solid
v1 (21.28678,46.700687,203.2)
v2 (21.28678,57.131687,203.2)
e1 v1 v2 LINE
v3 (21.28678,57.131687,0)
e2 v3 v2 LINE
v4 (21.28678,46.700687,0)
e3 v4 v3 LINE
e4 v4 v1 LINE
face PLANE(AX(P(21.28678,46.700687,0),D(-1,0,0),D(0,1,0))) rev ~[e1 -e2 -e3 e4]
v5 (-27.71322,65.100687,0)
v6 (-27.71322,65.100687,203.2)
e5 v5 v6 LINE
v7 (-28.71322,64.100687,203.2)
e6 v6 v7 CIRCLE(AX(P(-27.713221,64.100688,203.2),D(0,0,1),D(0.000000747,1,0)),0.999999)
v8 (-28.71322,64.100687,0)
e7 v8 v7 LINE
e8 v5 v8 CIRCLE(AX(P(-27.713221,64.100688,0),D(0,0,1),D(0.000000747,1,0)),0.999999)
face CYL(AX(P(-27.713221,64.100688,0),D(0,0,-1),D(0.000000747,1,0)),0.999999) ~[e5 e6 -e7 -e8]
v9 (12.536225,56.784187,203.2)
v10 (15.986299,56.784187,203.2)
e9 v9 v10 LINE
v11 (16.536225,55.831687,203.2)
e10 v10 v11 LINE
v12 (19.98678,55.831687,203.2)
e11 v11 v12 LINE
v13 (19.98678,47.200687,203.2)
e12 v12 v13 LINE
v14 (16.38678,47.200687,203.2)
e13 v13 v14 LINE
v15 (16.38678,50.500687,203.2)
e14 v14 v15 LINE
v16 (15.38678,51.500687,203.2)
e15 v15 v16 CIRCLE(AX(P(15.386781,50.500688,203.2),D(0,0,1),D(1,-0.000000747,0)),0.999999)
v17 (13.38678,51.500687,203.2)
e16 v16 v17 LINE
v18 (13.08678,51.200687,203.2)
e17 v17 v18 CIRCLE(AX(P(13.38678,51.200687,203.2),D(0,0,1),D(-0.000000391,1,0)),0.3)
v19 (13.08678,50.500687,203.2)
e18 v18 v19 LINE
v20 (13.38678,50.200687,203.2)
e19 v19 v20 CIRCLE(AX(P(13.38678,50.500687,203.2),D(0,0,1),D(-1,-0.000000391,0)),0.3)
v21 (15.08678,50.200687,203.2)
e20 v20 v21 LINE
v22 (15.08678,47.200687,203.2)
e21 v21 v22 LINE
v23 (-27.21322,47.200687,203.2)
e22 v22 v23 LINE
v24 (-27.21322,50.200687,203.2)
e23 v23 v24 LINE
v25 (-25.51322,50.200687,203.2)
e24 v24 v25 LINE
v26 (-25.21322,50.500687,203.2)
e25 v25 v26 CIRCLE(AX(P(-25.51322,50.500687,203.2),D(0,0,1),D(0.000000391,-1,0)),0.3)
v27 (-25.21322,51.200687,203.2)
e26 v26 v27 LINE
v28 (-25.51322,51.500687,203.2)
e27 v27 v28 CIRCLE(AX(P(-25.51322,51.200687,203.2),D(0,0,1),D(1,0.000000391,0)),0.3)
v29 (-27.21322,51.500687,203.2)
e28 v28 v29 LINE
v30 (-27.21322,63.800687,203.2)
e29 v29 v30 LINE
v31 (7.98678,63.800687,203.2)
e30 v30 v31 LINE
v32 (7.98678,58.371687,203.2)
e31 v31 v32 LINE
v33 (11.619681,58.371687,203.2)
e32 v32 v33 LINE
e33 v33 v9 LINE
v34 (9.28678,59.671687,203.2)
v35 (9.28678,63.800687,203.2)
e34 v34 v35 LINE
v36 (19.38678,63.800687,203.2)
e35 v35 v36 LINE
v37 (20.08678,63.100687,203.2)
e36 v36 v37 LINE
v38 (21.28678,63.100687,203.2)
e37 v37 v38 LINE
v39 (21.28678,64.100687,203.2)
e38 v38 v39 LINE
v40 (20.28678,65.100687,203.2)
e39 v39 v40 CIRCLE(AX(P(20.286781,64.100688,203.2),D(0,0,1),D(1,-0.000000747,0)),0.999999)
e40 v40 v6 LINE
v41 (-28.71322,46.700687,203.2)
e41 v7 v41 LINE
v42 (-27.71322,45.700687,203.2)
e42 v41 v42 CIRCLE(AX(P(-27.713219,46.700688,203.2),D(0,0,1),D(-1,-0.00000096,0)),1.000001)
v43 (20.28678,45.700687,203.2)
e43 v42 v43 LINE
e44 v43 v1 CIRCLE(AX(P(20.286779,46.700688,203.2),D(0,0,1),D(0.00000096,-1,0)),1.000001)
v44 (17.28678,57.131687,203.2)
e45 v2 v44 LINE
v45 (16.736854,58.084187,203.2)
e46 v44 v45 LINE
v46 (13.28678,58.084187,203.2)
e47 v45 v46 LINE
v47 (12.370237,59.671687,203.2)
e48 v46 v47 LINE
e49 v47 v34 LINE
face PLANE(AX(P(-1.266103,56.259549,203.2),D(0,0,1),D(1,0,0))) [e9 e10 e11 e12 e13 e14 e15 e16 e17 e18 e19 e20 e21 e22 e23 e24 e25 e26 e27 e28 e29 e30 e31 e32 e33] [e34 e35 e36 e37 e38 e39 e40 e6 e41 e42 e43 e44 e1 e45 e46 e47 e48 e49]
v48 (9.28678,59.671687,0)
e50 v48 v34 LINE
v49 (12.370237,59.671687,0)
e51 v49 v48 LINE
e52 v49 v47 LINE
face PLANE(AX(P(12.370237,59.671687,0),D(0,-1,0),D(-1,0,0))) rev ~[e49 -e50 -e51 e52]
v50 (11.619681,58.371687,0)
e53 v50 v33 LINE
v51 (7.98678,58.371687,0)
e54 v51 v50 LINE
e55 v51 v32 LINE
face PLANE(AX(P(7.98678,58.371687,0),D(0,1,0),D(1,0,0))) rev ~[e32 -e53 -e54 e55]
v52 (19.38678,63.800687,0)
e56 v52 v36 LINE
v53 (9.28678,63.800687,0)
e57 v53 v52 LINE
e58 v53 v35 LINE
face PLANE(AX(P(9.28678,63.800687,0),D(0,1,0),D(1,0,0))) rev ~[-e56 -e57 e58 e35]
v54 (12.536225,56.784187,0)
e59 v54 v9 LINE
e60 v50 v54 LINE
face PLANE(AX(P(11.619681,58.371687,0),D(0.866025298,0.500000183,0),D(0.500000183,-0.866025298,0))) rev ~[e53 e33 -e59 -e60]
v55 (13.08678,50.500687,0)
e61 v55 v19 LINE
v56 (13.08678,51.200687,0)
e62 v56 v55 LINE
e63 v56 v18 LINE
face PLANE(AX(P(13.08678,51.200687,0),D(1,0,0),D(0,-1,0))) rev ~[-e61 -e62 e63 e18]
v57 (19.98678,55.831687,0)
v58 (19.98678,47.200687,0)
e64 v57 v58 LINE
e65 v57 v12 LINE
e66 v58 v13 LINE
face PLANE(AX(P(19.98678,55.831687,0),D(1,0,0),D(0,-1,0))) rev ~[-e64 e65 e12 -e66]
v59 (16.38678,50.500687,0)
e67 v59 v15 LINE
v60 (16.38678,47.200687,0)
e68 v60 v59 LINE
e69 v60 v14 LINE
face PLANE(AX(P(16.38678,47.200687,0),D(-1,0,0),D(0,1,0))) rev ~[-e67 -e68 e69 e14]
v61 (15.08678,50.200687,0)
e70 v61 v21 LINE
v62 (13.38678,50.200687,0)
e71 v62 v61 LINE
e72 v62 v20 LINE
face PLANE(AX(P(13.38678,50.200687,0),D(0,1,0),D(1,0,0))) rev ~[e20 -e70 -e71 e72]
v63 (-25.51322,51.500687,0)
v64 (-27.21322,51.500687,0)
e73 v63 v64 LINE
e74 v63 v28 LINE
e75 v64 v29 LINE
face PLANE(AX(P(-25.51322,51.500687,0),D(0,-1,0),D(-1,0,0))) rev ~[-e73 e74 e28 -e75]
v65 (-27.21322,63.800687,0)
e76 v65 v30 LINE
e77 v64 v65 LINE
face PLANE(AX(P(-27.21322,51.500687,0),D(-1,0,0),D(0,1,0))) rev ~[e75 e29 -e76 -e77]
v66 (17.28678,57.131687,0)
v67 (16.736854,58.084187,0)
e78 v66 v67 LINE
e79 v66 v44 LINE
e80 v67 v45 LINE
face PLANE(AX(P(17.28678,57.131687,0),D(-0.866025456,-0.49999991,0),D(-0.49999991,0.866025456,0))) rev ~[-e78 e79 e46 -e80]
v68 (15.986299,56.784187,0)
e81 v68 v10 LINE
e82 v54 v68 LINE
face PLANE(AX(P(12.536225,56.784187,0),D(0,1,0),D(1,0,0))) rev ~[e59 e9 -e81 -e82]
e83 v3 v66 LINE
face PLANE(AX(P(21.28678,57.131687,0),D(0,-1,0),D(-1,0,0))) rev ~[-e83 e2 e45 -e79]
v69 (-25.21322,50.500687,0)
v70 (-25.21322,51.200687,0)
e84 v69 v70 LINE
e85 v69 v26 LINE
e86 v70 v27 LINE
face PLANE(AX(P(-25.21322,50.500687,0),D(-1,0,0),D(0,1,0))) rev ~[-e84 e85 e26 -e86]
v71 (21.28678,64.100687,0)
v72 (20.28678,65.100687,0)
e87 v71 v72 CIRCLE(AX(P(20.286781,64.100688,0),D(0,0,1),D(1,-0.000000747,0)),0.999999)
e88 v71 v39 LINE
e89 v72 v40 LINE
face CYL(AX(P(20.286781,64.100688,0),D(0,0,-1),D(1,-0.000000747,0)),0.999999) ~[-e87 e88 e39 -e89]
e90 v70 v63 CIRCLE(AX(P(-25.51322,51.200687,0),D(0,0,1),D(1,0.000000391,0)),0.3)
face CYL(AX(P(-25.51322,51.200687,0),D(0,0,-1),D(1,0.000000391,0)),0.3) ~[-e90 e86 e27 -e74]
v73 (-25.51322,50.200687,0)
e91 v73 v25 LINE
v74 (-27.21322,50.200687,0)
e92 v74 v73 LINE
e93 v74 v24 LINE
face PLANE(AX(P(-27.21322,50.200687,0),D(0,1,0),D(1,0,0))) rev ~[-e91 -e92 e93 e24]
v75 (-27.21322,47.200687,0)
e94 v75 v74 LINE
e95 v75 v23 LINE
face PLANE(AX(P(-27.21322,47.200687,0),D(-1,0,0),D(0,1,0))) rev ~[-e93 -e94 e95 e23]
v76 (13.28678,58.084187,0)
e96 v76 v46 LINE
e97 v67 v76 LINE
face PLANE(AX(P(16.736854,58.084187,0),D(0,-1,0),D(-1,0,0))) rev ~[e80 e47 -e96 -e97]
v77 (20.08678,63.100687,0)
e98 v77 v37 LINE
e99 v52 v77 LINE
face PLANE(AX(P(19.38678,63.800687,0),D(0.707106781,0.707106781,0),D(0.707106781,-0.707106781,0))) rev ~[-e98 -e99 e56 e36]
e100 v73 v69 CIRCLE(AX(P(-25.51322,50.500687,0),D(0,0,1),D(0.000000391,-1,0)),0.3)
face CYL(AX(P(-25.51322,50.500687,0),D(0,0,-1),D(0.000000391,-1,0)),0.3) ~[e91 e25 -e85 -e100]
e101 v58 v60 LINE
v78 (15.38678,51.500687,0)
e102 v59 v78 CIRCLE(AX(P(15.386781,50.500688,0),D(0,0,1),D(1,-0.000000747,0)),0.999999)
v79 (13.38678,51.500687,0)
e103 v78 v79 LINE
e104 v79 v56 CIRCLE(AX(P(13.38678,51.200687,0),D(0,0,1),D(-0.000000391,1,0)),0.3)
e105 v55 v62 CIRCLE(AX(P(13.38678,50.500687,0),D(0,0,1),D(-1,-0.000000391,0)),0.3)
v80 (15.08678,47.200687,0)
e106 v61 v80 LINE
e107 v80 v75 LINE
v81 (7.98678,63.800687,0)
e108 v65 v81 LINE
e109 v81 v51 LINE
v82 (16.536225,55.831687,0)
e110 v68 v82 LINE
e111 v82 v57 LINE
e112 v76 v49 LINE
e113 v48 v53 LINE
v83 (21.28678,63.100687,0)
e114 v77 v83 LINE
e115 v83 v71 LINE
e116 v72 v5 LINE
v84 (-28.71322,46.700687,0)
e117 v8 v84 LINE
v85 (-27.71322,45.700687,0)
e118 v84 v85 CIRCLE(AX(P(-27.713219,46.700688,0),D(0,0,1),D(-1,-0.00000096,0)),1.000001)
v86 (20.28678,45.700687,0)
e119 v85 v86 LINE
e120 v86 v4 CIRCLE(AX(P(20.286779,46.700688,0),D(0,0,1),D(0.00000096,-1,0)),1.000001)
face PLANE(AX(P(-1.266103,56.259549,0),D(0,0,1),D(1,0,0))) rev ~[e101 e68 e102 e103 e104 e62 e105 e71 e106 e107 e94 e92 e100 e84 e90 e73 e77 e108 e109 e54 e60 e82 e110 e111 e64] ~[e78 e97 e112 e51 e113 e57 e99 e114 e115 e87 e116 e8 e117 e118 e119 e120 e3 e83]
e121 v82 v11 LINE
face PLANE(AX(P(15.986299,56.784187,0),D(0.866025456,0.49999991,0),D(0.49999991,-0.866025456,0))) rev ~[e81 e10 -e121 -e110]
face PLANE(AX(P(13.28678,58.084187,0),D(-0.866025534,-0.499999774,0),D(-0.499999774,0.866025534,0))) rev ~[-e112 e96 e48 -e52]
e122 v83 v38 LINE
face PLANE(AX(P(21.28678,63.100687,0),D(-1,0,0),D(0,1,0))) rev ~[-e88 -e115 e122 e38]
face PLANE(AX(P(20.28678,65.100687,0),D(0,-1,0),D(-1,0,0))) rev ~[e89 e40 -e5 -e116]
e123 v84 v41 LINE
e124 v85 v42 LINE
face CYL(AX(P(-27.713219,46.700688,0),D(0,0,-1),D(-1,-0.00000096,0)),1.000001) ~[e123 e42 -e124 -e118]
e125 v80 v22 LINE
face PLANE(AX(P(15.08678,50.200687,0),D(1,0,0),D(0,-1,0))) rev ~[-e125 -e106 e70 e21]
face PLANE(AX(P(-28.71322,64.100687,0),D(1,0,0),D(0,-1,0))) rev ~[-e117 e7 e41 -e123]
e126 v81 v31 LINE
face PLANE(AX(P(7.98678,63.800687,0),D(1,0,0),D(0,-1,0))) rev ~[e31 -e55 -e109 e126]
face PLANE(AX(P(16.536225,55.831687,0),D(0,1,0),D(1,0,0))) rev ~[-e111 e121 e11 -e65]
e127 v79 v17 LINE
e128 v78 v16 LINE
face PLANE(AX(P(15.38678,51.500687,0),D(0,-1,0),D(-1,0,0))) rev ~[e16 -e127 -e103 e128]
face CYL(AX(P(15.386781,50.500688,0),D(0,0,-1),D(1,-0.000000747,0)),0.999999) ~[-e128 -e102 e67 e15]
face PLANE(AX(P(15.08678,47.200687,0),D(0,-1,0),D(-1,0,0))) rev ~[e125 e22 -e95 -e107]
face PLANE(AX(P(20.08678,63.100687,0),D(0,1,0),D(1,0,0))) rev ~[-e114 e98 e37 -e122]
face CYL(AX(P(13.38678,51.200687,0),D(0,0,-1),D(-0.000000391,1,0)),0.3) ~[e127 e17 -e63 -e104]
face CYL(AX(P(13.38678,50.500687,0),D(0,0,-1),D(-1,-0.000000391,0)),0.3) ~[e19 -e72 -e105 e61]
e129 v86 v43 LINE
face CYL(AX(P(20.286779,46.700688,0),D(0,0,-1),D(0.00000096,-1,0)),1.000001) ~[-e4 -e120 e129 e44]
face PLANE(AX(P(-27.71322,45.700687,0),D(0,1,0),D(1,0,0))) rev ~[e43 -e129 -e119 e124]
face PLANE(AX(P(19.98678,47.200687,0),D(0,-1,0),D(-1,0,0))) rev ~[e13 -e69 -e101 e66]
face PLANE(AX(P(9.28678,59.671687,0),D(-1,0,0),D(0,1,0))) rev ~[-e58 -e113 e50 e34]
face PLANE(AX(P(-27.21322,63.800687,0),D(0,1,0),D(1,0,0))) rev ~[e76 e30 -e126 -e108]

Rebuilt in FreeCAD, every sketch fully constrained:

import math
import FreeCAD as App
import Part
import Sketcher
Q = App.Units.Quantity

doc = App.newDocument("Part")
params = doc.addObject("Spreadsheet::Sheet", "Params")
for row, (alias, value) in enumerate([
    ("sketch1_radius", "0.999999 mm"),
    ("sketch1_radius2", "0.3 mm"),
    ("sketch1_width", "48 mm"),
    ("sketch1_width2", "4 mm"),
    ("sketch1_width3", "2 mm"),
    ("pad1_length", "203.2 mm"),
], start=1):
    params.set(f"A{row}", alias)
    params.set(f"B{row}", "=" + value)
    params.setAlias(f"B{row}", alias)

body = doc.addObject("PartDesign::Body", "Body")

sketch1 = body.newObject("Sketcher::SketchObject", "Sketch")
sketch1.AttachmentSupport = (doc.getObject("XY_Plane"), [""])
sketch1.MapMode = "FlatFace"
sketch1.addGeometry([
    Part.LineSegment(App.Vector(12.37, 59.67, 0), App.Vector(9.29, 59.67, 0)),
    Part.LineSegment(App.Vector(9.29, 59.67, 0), App.Vector(9.29, 63.8, 0)),
    Part.LineSegment(App.Vector(9.29, 63.8, 0), App.Vector(19.39, 63.8, 0)),
    Part.LineSegment(App.Vector(19.39, 63.8, 0), App.Vector(20.09, 63.1, 0)),
    Part.LineSegment(App.Vector(20.09, 63.1, 0), App.Vector(21.29, 63.1, 0)),
    Part.LineSegment(App.Vector(21.29, 63.1, 0), App.Vector(21.29, 64.1, 0)),
    Part.ArcOfCircle(Part.Circle(App.Vector(20.29, 64.1, 0), App.Vector(0, 0, 1), 1), math.radians(0), math.radians(90)),
    Part.LineSegment(App.Vector(20.29, 65.1, 0), App.Vector(-27.71, 65.1, 0)),
    Part.ArcOfCircle(Part.Circle(App.Vector(-27.71, 64.1, 0), App.Vector(0, 0, 1), 1), math.radians(90), math.radians(180)),
    Part.LineSegment(App.Vector(-28.71, 64.1, 0), App.Vector(-28.71, 46.7, 0)),
    Part.ArcOfCircle(Part.Circle(App.Vector(-27.71, 46.7, 0), App.Vector(0, 0, 1), 1), math.radians(-180), math.radians(-90)),
    Part.LineSegment(App.Vector(-27.71, 45.7, 0), App.Vector(20.29, 45.7, 0)),
    Part.ArcOfCircle(Part.Circle(App.Vector(20.29, 46.7, 0), App.Vector(0, 0, 1), 1), math.radians(-90), math.radians(0)),
    Part.LineSegment(App.Vector(21.29, 46.7, 0), App.Vector(21.29, 57.13, 0)),
    Part.LineSegment(App.Vector(21.29, 57.13, 0), App.Vector(17.29, 57.13, 0)),
    Part.LineSegment(App.Vector(17.29, 57.13, 0), App.Vector(16.74, 58.08, 0)),
    Part.LineSegment(App.Vector(16.74, 58.08, 0), App.Vector(13.29, 58.08, 0)),
    Part.LineSegment(App.Vector(13.29, 58.08, 0), App.Vector(12.37, 59.67, 0)),
    Part.LineSegment(App.Vector(-25.51, 51.5, 0), App.Vector(-27.21, 51.5, 0)),
    Part.LineSegment(App.Vector(-27.21, 51.5, 0), App.Vector(-27.21, 63.8, 0)),
    Part.LineSegment(App.Vector(-27.21, 63.8, 0), App.Vector(7.99, 63.8, 0)),
    Part.LineSegment(App.Vector(7.99, 63.8, 0), App.Vector(7.99, 58.37, 0)),
    Part.LineSegment(App.Vector(7.99, 58.37, 0), App.Vector(11.62, 58.37, 0)),
    Part.LineSegment(App.Vector(11.62, 58.37, 0), App.Vector(12.54, 56.78, 0)),
    Part.LineSegment(App.Vector(12.54, 56.78, 0), App.Vector(15.99, 56.78, 0)),
    Part.LineSegment(App.Vector(15.99, 56.78, 0), App.Vector(16.54, 55.83, 0)),
    Part.LineSegment(App.Vector(16.54, 55.83, 0), App.Vector(19.99, 55.83, 0)),
    Part.LineSegment(App.Vector(19.99, 55.83, 0), App.Vector(19.99, 47.2, 0)),
    Part.LineSegment(App.Vector(19.99, 47.2, 0), App.Vector(16.39, 47.2, 0)),
    Part.LineSegment(App.Vector(16.39, 47.2, 0), App.Vector(16.39, 50.5, 0)),
    Part.ArcOfCircle(Part.Circle(App.Vector(15.39, 50.5, 0), App.Vector(0, 0, 1), 1), math.radians(0), math.radians(90)),
    Part.LineSegment(App.Vector(15.39, 51.5, 0), App.Vector(13.39, 51.5, 0)),
    Part.ArcOfCircle(Part.Circle(App.Vector(13.39, 51.2, 0), App.Vector(0, 0, 1), 0.3), math.radians(90), math.radians(180)),
    Part.LineSegment(App.Vector(13.09, 51.2, 0), App.Vector(13.09, 50.5, 0)),
    Part.ArcOfCircle(Part.Circle(App.Vector(13.39, 50.5, 0), App.Vector(0, 0, 1), 0.3), math.radians(-180), math.radians(-90)),
    Part.LineSegment(App.Vector(13.39, 50.2, 0), App.Vector(15.09, 50.2, 0)),
    Part.LineSegment(App.Vector(15.09, 50.2, 0), App.Vector(15.09, 47.2, 0)),
    Part.LineSegment(App.Vector(15.09, 47.2, 0), App.Vector(-27.21, 47.2, 0)),
    Part.LineSegment(App.Vector(-27.21, 47.2, 0), App.Vector(-27.21, 50.2, 0)),
    Part.LineSegment(App.Vector(-27.21, 50.2, 0), App.Vector(-25.51, 50.2, 0)),
    Part.ArcOfCircle(Part.Circle(App.Vector(-25.51, 50.5, 0), App.Vector(0, 0, 1), 0.3), math.radians(-90), math.radians(0)),
    Part.LineSegment(App.Vector(-25.21, 50.5, 0), App.Vector(-25.21, 51.2, 0)),
    Part.ArcOfCircle(Part.Circle(App.Vector(-25.51, 51.2, 0), App.Vector(0, 0, 1), 0.3), math.radians(0), math.radians(90)),
], False)
sketch1.addConstraint([
    Sketcher.Constraint("Coincident", 0, 2, 1, 1),
    Sketcher.Constraint("Coincident", 1, 2, 2, 1),
    Sketcher.Constraint("Coincident", 2, 2, 3, 1),
    Sketcher.Constraint("Coincident", 3, 2, 4, 1),
    Sketcher.Constraint("Coincident", 4, 2, 5, 1),
    Sketcher.Constraint("Tangent", 5, 2, 6, 1),
    Sketcher.Constraint("Tangent", 6, 2, 7, 1),
    Sketcher.Constraint("Tangent", 7, 2, 8, 1),
    Sketcher.Constraint("Tangent", 8, 2, 9, 1),
    Sketcher.Constraint("Tangent", 9, 2, 10, 1),
    Sketcher.Constraint("Tangent", 10, 2, 11, 1),
    Sketcher.Constraint("Tangent", 11, 2, 12, 1),
    Sketcher.Constraint("Tangent", 12, 2, 13, 1),
    Sketcher.Constraint("Coincident", 13, 2, 14, 1),
    Sketcher.Constraint("Coincident", 14, 2, 15, 1),
    Sketcher.Constraint("Coincident", 15, 2, 16, 1),
    Sketcher.Constraint("Coincident", 16, 2, 17, 1),
    Sketcher.Constraint("Coincident", 17, 2, 0, 1),
    Sketcher.Constraint("Coincident", 18, 2, 19, 1),
    Sketcher.Constraint("Coincident", 19, 2, 20, 1),
    Sketcher.Constraint("Coincident", 20, 2, 21, 1),
    Sketcher.Constraint("Coincident", 21, 2, 22, 1),
    Sketcher.Constraint("Coincident", 22, 2, 23, 1),
    Sketcher.Constraint("Coincident", 23, 2, 24, 1),
    Sketcher.Constraint("Coincident", 24, 2, 25, 1),
    Sketcher.Constraint("Coincident", 25, 2, 26, 1),
    Sketcher.Constraint("Coincident", 26, 2, 27, 1),
    Sketcher.Constraint("Coincident", 27, 2, 28, 1),
    Sketcher.Constraint("Coincident", 28, 2, 29, 1),
    Sketcher.Constraint("Tangent", 29, 2, 30, 1),
    Sketcher.Constraint("Tangent", 30, 2, 31, 1),
    Sketcher.Constraint("Tangent", 31, 2, 32, 1),
    Sketcher.Constraint("Tangent", 32, 2, 33, 1),
    Sketcher.Constraint("Tangent", 33, 2, 34, 1),
    Sketcher.Constraint("Tangent", 34, 2, 35, 1),
    Sketcher.Constraint("Coincident", 35, 2, 36, 1),
    Sketcher.Constraint("Coincident", 36, 2, 37, 1),
    Sketcher.Constraint("Coincident", 37, 2, 38, 1),
    Sketcher.Constraint("Coincident", 38, 2, 39, 1),
    Sketcher.Constraint("Tangent", 39, 2, 40, 1),
    Sketcher.Constraint("Tangent", 40, 2, 41, 1),
    Sketcher.Constraint("Tangent", 41, 2, 42, 1),
    Sketcher.Constraint("Tangent", 42, 2, 18, 1),
    Sketcher.Constraint("Horizontal", 0),
    Sketcher.Constraint("Vertical", 1),
    Sketcher.Constraint("Horizontal", 2),
    Sketcher.Constraint("Horizontal", 4),
    Sketcher.Constraint("Vertical", 5),
    Sketcher.Constraint("Horizontal", 7),
    Sketcher.Constraint("Vertical", 9),
    Sketcher.Constraint("Horizontal", 11),
    Sketcher.Constraint("Vertical", 13),
    Sketcher.Constraint("Horizontal", 14),
    Sketcher.Constraint("Horizontal", 16),
    Sketcher.Constraint("Horizontal", 18),
    Sketcher.Constraint("Vertical", 19),
    Sketcher.Constraint("Horizontal", 20),
    Sketcher.Constraint("Vertical", 21),
    Sketcher.Constraint("Horizontal", 22),
    Sketcher.Constraint("Horizontal", 24),
    Sketcher.Constraint("Horizontal", 26),
    Sketcher.Constraint("Vertical", 27),
    Sketcher.Constraint("Horizontal", 28),
    Sketcher.Constraint("Vertical", 29),
    Sketcher.Constraint("Horizontal", 31),
    Sketcher.Constraint("Vertical", 33),
    Sketcher.Constraint("Horizontal", 35),
    Sketcher.Constraint("Vertical", 36),
    Sketcher.Constraint("Horizontal", 37),
    Sketcher.Constraint("Vertical", 38),
    Sketcher.Constraint("Horizontal", 39),
    Sketcher.Constraint("Vertical", 41),
    Sketcher.Constraint("Equal", 6, 8),
    Sketcher.Constraint("Equal", 8, 10),
    Sketcher.Constraint("Equal", 10, 12),
    Sketcher.Constraint("Equal", 12, 30),
    Sketcher.Constraint("Equal", 32, 34),
    Sketcher.Constraint("Equal", 34, 40),
    Sketcher.Constraint("Equal", 40, 42),
    Sketcher.Constraint("Parallel", 15, 17),
    Sketcher.Constraint("Parallel", 17, 23),
    Sketcher.Constraint("Parallel", 23, 25),
    Sketcher.Constraint("Horizontal", 30, 3, 34, 3),
    Sketcher.Constraint("Horizontal", 34, 3, 40, 3),
    Sketcher.Constraint("Horizontal", 32, 3, 42, 3),
    Sketcher.Constraint("Horizontal", 2, 2, 19, 2),
    Sketcher.Constraint("Horizontal", 28, 2, 36, 2),
    Sketcher.Constraint("Vertical", 6, 3, 12, 3),
    Sketcher.Constraint("Vertical", 19, 2, 37, 2),
    Sketcher.Constraint("Equal", 16, 24),
    Sketcher.Constraint("Equal", 18, 35),
    Sketcher.Constraint("Equal", 17, 23),
    Sketcher.Constraint("Equal", 15, 25),
    Sketcher.Constraint("Radius", 6, 0.999999),
    Sketcher.Constraint("Radius", 32, 0.3),
    Sketcher.Constraint("DistanceX", 7, 2, 7, 1, 48.0),
    Sketcher.Constraint("DistanceX", 14, 2, 14, 1, 4.0),
    Sketcher.Constraint("DistanceX", 31, 2, 31, 1, 2.0),
    Sketcher.Constraint("DistanceY", 5, 1, 5, 2, 1.0),
    Sketcher.Constraint("DistanceY", 36, 2, 36, 1, 3.0),
    Sketcher.Constraint("Angle", 3, Q("-45 deg")),
    Sketcher.Constraint("Angle", 15, Q("119.999994 deg")),
    Sketcher.Constraint("DistanceX", 2, 1, 2, 2, 10.1),
    Sketcher.Constraint("DistanceX", 4, 1, 4, 2, 1.2),
    Sketcher.Constraint("DistanceX", 18, 2, 18, 1, 1.7),
    Sketcher.Constraint("DistanceX", 20, 1, 20, 2, 35.2),
    Sketcher.Constraint("DistanceX", 28, 2, 28, 1, 3.6),
    Sketcher.Constraint("DistanceX", 37, 2, 37, 1, 42.3),
    Sketcher.Constraint("DistanceY", 9, 2, 9, 1, 17.4),
    Sketcher.Constraint("DistanceY", 19, 1, 19, 2, 12.3),
    Sketcher.Constraint("DistanceX", 0, 2, 6, 3, 11.000001),
    Sketcher.Constraint("DistanceX", 30, 3, 2, 2, 3.999999),
    Sketcher.Constraint("DistanceX", 16, 2, 14, 2, 4.0),
    Sketcher.Constraint("DistanceY", 21, 2, 0, 2, 1.3),
    Sketcher.Constraint("DistanceY", 1, 1, 1, 2, 4.129),
    Sketcher.Constraint("DistanceY", 13, 1, 13, 2, 10.431),
    Sketcher.Constraint("DistanceX", 22, 1, 22, 2, 3.632901),
    Sketcher.Constraint("DistanceX", -1, 1, 24, 2, 15.986299),
    Sketcher.Constraint("DistanceY", 14, 2, 15, 2, 0.9525),
    Sketcher.Constraint("DistanceY", -1, 1, 6, 3, 64.100688),
])
sketch1.setExpression("Constraints[93]", "Params.sketch1_radius")
sketch1.setExpression("Constraints[94]", "Params.sketch1_radius2")
sketch1.setExpression("Constraints[95]", "Params.sketch1_width")
sketch1.setExpression("Constraints[96]", "Params.sketch1_width2")
sketch1.setExpression("Constraints[97]", "Params.sketch1_width3")
pad1 = body.newObject("PartDesign::Pad", "Pad")
pad1.Profile = sketch1
pad1.setExpression("Length", "Params.pad1_length")

doc.recompute()
